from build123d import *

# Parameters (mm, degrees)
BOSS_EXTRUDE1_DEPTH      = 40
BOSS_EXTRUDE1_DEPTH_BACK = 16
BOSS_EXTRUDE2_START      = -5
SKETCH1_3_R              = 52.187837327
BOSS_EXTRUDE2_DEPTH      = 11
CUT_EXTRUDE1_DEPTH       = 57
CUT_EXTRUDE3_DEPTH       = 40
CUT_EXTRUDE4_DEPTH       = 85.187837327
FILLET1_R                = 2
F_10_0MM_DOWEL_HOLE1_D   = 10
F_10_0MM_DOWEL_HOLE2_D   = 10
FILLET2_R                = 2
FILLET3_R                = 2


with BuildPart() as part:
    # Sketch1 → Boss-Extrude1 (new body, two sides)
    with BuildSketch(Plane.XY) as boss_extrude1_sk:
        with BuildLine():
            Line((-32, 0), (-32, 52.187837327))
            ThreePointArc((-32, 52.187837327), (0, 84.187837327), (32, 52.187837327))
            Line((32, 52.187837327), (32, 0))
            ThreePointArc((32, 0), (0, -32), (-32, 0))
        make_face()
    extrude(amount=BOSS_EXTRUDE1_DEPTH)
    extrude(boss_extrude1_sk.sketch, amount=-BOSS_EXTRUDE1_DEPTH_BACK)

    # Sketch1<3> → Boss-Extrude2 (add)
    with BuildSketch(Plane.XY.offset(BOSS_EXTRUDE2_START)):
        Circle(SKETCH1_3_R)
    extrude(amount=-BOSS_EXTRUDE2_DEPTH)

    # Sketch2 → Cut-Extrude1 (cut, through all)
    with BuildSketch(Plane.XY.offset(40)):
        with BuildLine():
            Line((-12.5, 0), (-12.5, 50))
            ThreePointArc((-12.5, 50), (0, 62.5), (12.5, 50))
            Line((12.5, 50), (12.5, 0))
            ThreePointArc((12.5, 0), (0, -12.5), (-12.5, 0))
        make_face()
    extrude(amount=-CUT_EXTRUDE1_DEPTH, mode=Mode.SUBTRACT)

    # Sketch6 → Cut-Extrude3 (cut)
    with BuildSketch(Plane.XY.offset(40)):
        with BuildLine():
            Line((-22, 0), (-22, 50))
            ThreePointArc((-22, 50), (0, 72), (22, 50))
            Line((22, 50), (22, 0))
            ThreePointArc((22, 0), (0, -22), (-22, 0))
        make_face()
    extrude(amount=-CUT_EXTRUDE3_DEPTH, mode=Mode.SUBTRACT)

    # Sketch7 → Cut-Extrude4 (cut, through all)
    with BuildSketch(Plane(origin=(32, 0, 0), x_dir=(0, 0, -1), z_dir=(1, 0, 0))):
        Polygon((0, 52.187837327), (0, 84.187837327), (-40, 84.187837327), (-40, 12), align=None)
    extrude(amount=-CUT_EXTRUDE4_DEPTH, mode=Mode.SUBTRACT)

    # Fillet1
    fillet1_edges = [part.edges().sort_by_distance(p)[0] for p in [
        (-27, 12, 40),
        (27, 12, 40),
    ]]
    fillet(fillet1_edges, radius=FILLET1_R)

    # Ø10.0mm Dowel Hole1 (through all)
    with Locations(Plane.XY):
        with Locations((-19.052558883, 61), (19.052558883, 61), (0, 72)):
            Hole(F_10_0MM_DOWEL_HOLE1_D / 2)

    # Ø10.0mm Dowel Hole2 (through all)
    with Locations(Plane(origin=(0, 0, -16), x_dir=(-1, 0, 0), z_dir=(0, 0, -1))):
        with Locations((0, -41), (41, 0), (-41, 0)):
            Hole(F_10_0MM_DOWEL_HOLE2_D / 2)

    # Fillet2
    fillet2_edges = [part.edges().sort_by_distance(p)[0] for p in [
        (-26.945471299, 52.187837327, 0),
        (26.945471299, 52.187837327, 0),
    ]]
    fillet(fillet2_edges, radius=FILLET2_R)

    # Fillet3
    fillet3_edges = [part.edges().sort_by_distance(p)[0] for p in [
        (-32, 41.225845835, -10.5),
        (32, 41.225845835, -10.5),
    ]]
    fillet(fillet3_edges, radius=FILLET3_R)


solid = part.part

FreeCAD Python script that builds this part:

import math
import FreeCAD as App
import Part
import Sketcher


def edges_at(feature, points):
    """Names of the edges that pass closest to the given points."""
    edges = feature.Shape.Edges
    near = lambda p: min(range(len(edges)), key=lambda i: edges[i].distToShape(Part.Vertex(*p))[0])
    return sorted({f"Edge{near(p) + 1}" for p in points})


def add_polygon(sketch, points):
    """Adds a closed chain of lines whose ends are joined by coincident constraints."""
    first, n = sketch.GeometryCount, len(points)
    for a, b in zip(points, points[1:] + points[:1]):
        sketch.addGeometry(Part.LineSegment(App.Vector(*a, 0), App.Vector(*b, 0)), False)
    for i in range(n):
        sketch.addConstraint(Sketcher.Constraint("Coincident", first + i, 2, first + (i + 1) % n, 1))

doc = App.newDocument("Part")
body = doc.addObject("PartDesign::Body", "Body")

# Sketch on XY plane
sketch1 = doc.addObject("Sketcher::SketchObject", "Sketch")
body.addObject(sketch1)
sketch1.AttachmentSupport = (doc.XY_Plane, [""])
sketch1.MapMode = "FlatFace"
sketch1.addGeometry([
    Part.LineSegment(App.Vector(-32, 52.187837, 0), App.Vector(-32, 0, 0)),
    Part.ArcOfCircle(Part.Circle(App.Vector(0, 0, 0), App.Vector(0, 0, 1), 32), math.radians(180), math.radians(360)),
    Part.LineSegment(App.Vector(32, 0, 0), App.Vector(32, 52.187837, 0)),
    Part.ArcOfCircle(Part.Circle(App.Vector(0, 52.187837, 0), App.Vector(0, 0, 1), 32), math.radians(0), math.radians(180)),
], False)
sketch1.addConstraint([
    Sketcher.Constraint("Tangent", 0, 2, 1, 1),
    Sketcher.Constraint("Tangent", 1, 2, 2, 1),
    Sketcher.Constraint("Tangent", 2, 2, 3, 1),
    Sketcher.Constraint("Tangent", 3, 2, 0, 1),
    Sketcher.Constraint("Vertical", 0),
    Sketcher.Constraint("Vertical", 2),
    Sketcher.Constraint("Coincident", 1, 3, -1, 1),
    Sketcher.Constraint("Radius", 1, 32.0),
    Sketcher.Constraint("DistanceY", 0, 2, 0, 1, 52.187837),
])
pad1 = doc.addObject("PartDesign::Pad", "Pad")
body.addObject(pad1)
pad1.Profile = sketch1
pad1.Type = "TwoLengths"
pad1.Length = 40
pad1.Length2 = 16

# Sketch on XY plane
sketch2 = doc.addObject("Sketcher::SketchObject", "Sketch001")
body.addObject(sketch2)
sketch2.AttachmentSupport = (doc.XY_Plane, [""])
sketch2.MapMode = "FlatFace"
sketch2.AttachmentOffset = App.Placement(App.Vector(0, 0, -5), App.Rotation())
sketch2.addGeometry(Part.Circle(App.Vector(0, 0, 0), App.Vector(0, 0, 1), 52.187837), False)
sketch2.addConstraint([
    Sketcher.Constraint("Coincident", 0, 3, -1, 1),
    Sketcher.Constraint("Diameter", 0, 104.375675),
])
pad2 = doc.addObject("PartDesign::Pad", "Pad001")
body.addObject(pad2)
pad2.Profile = sketch2
pad2.Length = 11
pad2.Reversed = True

# Sketch on XY plane
sketch3 = doc.addObject("Sketcher::SketchObject", "Sketch002")
body.addObject(sketch3)
sketch3.AttachmentSupport = (doc.XY_Plane, [""])
sketch3.MapMode = "FlatFace"
sketch3.AttachmentOffset = App.Placement(App.Vector(0, 0, 40), App.Rotation())
sketch3.addGeometry([
    Part.LineSegment(App.Vector(-12.5, 50, 0), App.Vector(-12.5, 0, 0)),
    Part.ArcOfCircle(Part.Circle(App.Vector(0, 0, 0), App.Vector(0, 0, 1), 12.5), math.radians(180), math.radians(360)),
    Part.LineSegment(App.Vector(12.5, 0, 0), App.Vector(12.5, 50, 0)),
    Part.ArcOfCircle(Part.Circle(App.Vector(0, 50, 0), App.Vector(0, 0, 1), 12.5), math.radians(0), math.radians(180)),
], False)
sketch3.addConstraint([
    Sketcher.Constraint("Tangent", 0, 2, 1, 1),
    Sketcher.Constraint("Tangent", 1, 2, 2, 1),
    Sketcher.Constraint("Tangent", 2, 2, 3, 1),
    Sketcher.Constraint("Tangent", 3, 2, 0, 1),
    Sketcher.Constraint("Vertical", 0),
    Sketcher.Constraint("Vertical", 2),
    Sketcher.Constraint("Coincident", 1, 3, -1, 1),
    Sketcher.Constraint("Radius", 1, 12.5),
    Sketcher.Constraint("DistanceY", 0, 2, 0, 1, 50.0),
])
pocket1 = doc.addObject("PartDesign::Pocket", "Pocket")
body.addObject(pocket1)
pocket1.Profile = sketch3
pocket1.Type = "ThroughAll"

# Sketch on XY plane
sketch4 = doc.addObject("Sketcher::SketchObject", "Sketch003")
body.addObject(sketch4)
sketch4.AttachmentSupport = (doc.XY_Plane, [""])
sketch4.MapMode = "FlatFace"
sketch4.AttachmentOffset = App.Placement(App.Vector(0, 0, 40), App.Rotation())
sketch4.addGeometry([
    Part.LineSegment(App.Vector(-22, 50, 0), App.Vector(-22, 0, 0)),
    Part.ArcOfCircle(Part.Circle(App.Vector(0, 0, 0), App.Vector(0, 0, 1), 22), math.radians(180), math.radians(360)),
    Part.LineSegment(App.Vector(22, 0, 0), App.Vector(22, 50, 0)),
    Part.ArcOfCircle(Part.Circle(App.Vector(0, 50, 0), App.Vector(0, 0, 1), 22), math.radians(0), math.radians(180)),
], False)
sketch4.addConstraint([
    Sketcher.Constraint("Tangent", 0, 2, 1, 1),
    Sketcher.Constraint("Tangent", 1, 2, 2, 1),
    Sketcher.Constraint("Tangent", 2, 2, 3, 1),
    Sketcher.Constraint("Tangent", 3, 2, 0, 1),
    Sketcher.Constraint("Vertical", 0),
    Sketcher.Constraint("Vertical", 2),
    Sketcher.Constraint("Coincident", 1, 3, -1, 1),
    Sketcher.Constraint("Radius", 1, 22.0),
    Sketcher.Constraint("DistanceY", 0, 2, 0, 1, 50.0),
])
pocket2 = doc.addObject("PartDesign::Pocket", "Pocket001")
body.addObject(pocket2)
pocket2.Profile = sketch4
pocket2.Length = 40

# Sketch on YZ plane
sketch5 = doc.addObject("Sketcher::SketchObject", "Sketch004")
body.addObject(sketch5)
sketch5.AttachmentSupport = (doc.YZ_Plane, [""])
sketch5.MapMode = "FlatFace"
sketch5.AttachmentOffset = App.Placement(App.Vector(0, 0, 32), App.Rotation())
add_polygon(sketch5, [(52.187837, 0), (84.187837, 0), (84.187837, 40), (12, 40)])  # lines 0-3
sketch5.addConstraint([
    Sketcher.Constraint("Horizontal", 0),
    Sketcher.Constraint("Vertical", 1),
    Sketcher.Constraint("Horizontal", 2),
    Sketcher.Constraint("PointOnObject", 0, 2, -1),
    Sketcher.Constraint("DistanceX", 0, 1, 0, 2, 32.0),
    Sketcher.Constraint("DistanceY", 1, 1, 1, 2, 40.0),
    Sketcher.Constraint("DistanceX", -1, 1, 2, 2, 12.0),
    Sketcher.Constraint("Distance", 3, 56.701519),
])
pocket3 = doc.addObject("PartDesign::Pocket", "Pocket002")
body.addObject(pocket3)
pocket3.Profile = sketch5
pocket3.Type = "ThroughAll"
doc.recompute()

fillet = doc.addObject("PartDesign::Fillet", "Fillet")
body.addObject(fillet)
fillet.Base = (pocket3, edges_at(pocket3, [(-27, 12, 40), (27, 12, 40)]))
fillet.Radius = 2

# Sketch on XY plane
sketch6 = doc.addObject("Sketcher::SketchObject", "Sketch005")
body.addObject(sketch6)
sketch6.AttachmentSupport = (doc.XY_Plane, [""])
sketch6.MapMode = "FlatFace"
sketch6.addGeometry([
    Part.Circle(App.Vector(-19.052559, 61, 0), App.Vector(0, 0, 1), 5),
    Part.Circle(App.Vector(19.052559, 61, 0), App.Vector(0, 0, 1), 5),
    Part.Circle(App.Vector(0, 72, 0), App.Vector(0, 0, 1), 5),
], False)
sketch6.addConstraint([
    Sketcher.Constraint("Equal", 0, 1),
    Sketcher.Constraint("Equal", 1, 2),
    Sketcher.Constraint("Symmetric", 0, 3, 1, 3, -2),
    Sketcher.Constraint("PointOnObject", 2, 3, -2),
    Sketcher.Constraint("Diameter", 0, 10.0),
    Sketcher.Constraint("DistanceY", -1, 1, 0, 3, 61.0),
    Sketcher.Constraint("DistanceY", -1, 1, 2, 3, 72.0),
    Sketcher.Constraint("DistanceX", 0, 3, -1, 1, 19.052559),
])
doc.recompute()
hole = doc.addObject("PartDesign::Hole", "Hole")
body.addObject(hole)
hole.Profile = sketch6
hole.ThreadType = "None"
hole.Diameter = 10
hole.DepthType = "ThroughAll"

# Sketch on XY plane
sketch7 = doc.addObject("Sketcher::SketchObject", "Sketch006")
body.addObject(sketch7)
sketch7.AttachmentSupport = (doc.XY_Plane, [""])
sketch7.MapMode = "FlatFace"
sketch7.AttachmentOffset = App.Placement(App.Vector(0, 0, -16), App.Rotation())
sketch7.addGeometry([
    Part.Circle(App.Vector(0, -41, 0), App.Vector(0, 0, 1), 5),
    Part.Circle(App.Vector(-41, 0, 0), App.Vector(0, 0, 1), 5),
    Part.Circle(App.Vector(41, 0, 0), App.Vector(0, 0, 1), 5),
], False)
sketch7.addConstraint([
    Sketcher.Constraint("Equal", 0, 1),
    Sketcher.Constraint("Equal", 1, 2),
    Sketcher.Constraint("Symmetric", 1, 3, 2, 3, -1, 1),
    Sketcher.Constraint("PointOnObject", 0, 3, -2),
    Sketcher.Constraint("PointOnObject", 1, 3, -1),
    Sketcher.Constraint("Diameter", 0, 10.0),
    Sketcher.Constraint("DistanceY", 0, 3, -1, 1, 41.0),
    Sketcher.Constraint("DistanceX", 1, 3, -1, 1, 41.0),
])
doc.recompute()
hole2 = doc.addObject("PartDesign::Hole", "Hole001")
body.addObject(hole2)
hole2.Profile = sketch7
hole2.ThreadType = "None"
hole2.Diameter = 10
hole2.DepthType = "ThroughAll"
hole2.Reversed = True
doc.recompute()

fillet2 = doc.addObject("PartDesign::Fillet", "Fillet001")
body.addObject(fillet2)
fillet2.Base = (hole2, edges_at(hole2, [(-26.945, 52.188, 0), (26.945, 52.188, 0)]))
fillet2.Radius = 2
doc.recompute()

fillet3 = doc.addObject("PartDesign::Fillet", "Fillet002")
body.addObject(fillet3)
fillet3.Base = (fillet2, edges_at(fillet2, [(-32, 41.226, -10.5), (32, 41.226, -10.5)]))
fillet3.Radius = 2

doc.recompute()
